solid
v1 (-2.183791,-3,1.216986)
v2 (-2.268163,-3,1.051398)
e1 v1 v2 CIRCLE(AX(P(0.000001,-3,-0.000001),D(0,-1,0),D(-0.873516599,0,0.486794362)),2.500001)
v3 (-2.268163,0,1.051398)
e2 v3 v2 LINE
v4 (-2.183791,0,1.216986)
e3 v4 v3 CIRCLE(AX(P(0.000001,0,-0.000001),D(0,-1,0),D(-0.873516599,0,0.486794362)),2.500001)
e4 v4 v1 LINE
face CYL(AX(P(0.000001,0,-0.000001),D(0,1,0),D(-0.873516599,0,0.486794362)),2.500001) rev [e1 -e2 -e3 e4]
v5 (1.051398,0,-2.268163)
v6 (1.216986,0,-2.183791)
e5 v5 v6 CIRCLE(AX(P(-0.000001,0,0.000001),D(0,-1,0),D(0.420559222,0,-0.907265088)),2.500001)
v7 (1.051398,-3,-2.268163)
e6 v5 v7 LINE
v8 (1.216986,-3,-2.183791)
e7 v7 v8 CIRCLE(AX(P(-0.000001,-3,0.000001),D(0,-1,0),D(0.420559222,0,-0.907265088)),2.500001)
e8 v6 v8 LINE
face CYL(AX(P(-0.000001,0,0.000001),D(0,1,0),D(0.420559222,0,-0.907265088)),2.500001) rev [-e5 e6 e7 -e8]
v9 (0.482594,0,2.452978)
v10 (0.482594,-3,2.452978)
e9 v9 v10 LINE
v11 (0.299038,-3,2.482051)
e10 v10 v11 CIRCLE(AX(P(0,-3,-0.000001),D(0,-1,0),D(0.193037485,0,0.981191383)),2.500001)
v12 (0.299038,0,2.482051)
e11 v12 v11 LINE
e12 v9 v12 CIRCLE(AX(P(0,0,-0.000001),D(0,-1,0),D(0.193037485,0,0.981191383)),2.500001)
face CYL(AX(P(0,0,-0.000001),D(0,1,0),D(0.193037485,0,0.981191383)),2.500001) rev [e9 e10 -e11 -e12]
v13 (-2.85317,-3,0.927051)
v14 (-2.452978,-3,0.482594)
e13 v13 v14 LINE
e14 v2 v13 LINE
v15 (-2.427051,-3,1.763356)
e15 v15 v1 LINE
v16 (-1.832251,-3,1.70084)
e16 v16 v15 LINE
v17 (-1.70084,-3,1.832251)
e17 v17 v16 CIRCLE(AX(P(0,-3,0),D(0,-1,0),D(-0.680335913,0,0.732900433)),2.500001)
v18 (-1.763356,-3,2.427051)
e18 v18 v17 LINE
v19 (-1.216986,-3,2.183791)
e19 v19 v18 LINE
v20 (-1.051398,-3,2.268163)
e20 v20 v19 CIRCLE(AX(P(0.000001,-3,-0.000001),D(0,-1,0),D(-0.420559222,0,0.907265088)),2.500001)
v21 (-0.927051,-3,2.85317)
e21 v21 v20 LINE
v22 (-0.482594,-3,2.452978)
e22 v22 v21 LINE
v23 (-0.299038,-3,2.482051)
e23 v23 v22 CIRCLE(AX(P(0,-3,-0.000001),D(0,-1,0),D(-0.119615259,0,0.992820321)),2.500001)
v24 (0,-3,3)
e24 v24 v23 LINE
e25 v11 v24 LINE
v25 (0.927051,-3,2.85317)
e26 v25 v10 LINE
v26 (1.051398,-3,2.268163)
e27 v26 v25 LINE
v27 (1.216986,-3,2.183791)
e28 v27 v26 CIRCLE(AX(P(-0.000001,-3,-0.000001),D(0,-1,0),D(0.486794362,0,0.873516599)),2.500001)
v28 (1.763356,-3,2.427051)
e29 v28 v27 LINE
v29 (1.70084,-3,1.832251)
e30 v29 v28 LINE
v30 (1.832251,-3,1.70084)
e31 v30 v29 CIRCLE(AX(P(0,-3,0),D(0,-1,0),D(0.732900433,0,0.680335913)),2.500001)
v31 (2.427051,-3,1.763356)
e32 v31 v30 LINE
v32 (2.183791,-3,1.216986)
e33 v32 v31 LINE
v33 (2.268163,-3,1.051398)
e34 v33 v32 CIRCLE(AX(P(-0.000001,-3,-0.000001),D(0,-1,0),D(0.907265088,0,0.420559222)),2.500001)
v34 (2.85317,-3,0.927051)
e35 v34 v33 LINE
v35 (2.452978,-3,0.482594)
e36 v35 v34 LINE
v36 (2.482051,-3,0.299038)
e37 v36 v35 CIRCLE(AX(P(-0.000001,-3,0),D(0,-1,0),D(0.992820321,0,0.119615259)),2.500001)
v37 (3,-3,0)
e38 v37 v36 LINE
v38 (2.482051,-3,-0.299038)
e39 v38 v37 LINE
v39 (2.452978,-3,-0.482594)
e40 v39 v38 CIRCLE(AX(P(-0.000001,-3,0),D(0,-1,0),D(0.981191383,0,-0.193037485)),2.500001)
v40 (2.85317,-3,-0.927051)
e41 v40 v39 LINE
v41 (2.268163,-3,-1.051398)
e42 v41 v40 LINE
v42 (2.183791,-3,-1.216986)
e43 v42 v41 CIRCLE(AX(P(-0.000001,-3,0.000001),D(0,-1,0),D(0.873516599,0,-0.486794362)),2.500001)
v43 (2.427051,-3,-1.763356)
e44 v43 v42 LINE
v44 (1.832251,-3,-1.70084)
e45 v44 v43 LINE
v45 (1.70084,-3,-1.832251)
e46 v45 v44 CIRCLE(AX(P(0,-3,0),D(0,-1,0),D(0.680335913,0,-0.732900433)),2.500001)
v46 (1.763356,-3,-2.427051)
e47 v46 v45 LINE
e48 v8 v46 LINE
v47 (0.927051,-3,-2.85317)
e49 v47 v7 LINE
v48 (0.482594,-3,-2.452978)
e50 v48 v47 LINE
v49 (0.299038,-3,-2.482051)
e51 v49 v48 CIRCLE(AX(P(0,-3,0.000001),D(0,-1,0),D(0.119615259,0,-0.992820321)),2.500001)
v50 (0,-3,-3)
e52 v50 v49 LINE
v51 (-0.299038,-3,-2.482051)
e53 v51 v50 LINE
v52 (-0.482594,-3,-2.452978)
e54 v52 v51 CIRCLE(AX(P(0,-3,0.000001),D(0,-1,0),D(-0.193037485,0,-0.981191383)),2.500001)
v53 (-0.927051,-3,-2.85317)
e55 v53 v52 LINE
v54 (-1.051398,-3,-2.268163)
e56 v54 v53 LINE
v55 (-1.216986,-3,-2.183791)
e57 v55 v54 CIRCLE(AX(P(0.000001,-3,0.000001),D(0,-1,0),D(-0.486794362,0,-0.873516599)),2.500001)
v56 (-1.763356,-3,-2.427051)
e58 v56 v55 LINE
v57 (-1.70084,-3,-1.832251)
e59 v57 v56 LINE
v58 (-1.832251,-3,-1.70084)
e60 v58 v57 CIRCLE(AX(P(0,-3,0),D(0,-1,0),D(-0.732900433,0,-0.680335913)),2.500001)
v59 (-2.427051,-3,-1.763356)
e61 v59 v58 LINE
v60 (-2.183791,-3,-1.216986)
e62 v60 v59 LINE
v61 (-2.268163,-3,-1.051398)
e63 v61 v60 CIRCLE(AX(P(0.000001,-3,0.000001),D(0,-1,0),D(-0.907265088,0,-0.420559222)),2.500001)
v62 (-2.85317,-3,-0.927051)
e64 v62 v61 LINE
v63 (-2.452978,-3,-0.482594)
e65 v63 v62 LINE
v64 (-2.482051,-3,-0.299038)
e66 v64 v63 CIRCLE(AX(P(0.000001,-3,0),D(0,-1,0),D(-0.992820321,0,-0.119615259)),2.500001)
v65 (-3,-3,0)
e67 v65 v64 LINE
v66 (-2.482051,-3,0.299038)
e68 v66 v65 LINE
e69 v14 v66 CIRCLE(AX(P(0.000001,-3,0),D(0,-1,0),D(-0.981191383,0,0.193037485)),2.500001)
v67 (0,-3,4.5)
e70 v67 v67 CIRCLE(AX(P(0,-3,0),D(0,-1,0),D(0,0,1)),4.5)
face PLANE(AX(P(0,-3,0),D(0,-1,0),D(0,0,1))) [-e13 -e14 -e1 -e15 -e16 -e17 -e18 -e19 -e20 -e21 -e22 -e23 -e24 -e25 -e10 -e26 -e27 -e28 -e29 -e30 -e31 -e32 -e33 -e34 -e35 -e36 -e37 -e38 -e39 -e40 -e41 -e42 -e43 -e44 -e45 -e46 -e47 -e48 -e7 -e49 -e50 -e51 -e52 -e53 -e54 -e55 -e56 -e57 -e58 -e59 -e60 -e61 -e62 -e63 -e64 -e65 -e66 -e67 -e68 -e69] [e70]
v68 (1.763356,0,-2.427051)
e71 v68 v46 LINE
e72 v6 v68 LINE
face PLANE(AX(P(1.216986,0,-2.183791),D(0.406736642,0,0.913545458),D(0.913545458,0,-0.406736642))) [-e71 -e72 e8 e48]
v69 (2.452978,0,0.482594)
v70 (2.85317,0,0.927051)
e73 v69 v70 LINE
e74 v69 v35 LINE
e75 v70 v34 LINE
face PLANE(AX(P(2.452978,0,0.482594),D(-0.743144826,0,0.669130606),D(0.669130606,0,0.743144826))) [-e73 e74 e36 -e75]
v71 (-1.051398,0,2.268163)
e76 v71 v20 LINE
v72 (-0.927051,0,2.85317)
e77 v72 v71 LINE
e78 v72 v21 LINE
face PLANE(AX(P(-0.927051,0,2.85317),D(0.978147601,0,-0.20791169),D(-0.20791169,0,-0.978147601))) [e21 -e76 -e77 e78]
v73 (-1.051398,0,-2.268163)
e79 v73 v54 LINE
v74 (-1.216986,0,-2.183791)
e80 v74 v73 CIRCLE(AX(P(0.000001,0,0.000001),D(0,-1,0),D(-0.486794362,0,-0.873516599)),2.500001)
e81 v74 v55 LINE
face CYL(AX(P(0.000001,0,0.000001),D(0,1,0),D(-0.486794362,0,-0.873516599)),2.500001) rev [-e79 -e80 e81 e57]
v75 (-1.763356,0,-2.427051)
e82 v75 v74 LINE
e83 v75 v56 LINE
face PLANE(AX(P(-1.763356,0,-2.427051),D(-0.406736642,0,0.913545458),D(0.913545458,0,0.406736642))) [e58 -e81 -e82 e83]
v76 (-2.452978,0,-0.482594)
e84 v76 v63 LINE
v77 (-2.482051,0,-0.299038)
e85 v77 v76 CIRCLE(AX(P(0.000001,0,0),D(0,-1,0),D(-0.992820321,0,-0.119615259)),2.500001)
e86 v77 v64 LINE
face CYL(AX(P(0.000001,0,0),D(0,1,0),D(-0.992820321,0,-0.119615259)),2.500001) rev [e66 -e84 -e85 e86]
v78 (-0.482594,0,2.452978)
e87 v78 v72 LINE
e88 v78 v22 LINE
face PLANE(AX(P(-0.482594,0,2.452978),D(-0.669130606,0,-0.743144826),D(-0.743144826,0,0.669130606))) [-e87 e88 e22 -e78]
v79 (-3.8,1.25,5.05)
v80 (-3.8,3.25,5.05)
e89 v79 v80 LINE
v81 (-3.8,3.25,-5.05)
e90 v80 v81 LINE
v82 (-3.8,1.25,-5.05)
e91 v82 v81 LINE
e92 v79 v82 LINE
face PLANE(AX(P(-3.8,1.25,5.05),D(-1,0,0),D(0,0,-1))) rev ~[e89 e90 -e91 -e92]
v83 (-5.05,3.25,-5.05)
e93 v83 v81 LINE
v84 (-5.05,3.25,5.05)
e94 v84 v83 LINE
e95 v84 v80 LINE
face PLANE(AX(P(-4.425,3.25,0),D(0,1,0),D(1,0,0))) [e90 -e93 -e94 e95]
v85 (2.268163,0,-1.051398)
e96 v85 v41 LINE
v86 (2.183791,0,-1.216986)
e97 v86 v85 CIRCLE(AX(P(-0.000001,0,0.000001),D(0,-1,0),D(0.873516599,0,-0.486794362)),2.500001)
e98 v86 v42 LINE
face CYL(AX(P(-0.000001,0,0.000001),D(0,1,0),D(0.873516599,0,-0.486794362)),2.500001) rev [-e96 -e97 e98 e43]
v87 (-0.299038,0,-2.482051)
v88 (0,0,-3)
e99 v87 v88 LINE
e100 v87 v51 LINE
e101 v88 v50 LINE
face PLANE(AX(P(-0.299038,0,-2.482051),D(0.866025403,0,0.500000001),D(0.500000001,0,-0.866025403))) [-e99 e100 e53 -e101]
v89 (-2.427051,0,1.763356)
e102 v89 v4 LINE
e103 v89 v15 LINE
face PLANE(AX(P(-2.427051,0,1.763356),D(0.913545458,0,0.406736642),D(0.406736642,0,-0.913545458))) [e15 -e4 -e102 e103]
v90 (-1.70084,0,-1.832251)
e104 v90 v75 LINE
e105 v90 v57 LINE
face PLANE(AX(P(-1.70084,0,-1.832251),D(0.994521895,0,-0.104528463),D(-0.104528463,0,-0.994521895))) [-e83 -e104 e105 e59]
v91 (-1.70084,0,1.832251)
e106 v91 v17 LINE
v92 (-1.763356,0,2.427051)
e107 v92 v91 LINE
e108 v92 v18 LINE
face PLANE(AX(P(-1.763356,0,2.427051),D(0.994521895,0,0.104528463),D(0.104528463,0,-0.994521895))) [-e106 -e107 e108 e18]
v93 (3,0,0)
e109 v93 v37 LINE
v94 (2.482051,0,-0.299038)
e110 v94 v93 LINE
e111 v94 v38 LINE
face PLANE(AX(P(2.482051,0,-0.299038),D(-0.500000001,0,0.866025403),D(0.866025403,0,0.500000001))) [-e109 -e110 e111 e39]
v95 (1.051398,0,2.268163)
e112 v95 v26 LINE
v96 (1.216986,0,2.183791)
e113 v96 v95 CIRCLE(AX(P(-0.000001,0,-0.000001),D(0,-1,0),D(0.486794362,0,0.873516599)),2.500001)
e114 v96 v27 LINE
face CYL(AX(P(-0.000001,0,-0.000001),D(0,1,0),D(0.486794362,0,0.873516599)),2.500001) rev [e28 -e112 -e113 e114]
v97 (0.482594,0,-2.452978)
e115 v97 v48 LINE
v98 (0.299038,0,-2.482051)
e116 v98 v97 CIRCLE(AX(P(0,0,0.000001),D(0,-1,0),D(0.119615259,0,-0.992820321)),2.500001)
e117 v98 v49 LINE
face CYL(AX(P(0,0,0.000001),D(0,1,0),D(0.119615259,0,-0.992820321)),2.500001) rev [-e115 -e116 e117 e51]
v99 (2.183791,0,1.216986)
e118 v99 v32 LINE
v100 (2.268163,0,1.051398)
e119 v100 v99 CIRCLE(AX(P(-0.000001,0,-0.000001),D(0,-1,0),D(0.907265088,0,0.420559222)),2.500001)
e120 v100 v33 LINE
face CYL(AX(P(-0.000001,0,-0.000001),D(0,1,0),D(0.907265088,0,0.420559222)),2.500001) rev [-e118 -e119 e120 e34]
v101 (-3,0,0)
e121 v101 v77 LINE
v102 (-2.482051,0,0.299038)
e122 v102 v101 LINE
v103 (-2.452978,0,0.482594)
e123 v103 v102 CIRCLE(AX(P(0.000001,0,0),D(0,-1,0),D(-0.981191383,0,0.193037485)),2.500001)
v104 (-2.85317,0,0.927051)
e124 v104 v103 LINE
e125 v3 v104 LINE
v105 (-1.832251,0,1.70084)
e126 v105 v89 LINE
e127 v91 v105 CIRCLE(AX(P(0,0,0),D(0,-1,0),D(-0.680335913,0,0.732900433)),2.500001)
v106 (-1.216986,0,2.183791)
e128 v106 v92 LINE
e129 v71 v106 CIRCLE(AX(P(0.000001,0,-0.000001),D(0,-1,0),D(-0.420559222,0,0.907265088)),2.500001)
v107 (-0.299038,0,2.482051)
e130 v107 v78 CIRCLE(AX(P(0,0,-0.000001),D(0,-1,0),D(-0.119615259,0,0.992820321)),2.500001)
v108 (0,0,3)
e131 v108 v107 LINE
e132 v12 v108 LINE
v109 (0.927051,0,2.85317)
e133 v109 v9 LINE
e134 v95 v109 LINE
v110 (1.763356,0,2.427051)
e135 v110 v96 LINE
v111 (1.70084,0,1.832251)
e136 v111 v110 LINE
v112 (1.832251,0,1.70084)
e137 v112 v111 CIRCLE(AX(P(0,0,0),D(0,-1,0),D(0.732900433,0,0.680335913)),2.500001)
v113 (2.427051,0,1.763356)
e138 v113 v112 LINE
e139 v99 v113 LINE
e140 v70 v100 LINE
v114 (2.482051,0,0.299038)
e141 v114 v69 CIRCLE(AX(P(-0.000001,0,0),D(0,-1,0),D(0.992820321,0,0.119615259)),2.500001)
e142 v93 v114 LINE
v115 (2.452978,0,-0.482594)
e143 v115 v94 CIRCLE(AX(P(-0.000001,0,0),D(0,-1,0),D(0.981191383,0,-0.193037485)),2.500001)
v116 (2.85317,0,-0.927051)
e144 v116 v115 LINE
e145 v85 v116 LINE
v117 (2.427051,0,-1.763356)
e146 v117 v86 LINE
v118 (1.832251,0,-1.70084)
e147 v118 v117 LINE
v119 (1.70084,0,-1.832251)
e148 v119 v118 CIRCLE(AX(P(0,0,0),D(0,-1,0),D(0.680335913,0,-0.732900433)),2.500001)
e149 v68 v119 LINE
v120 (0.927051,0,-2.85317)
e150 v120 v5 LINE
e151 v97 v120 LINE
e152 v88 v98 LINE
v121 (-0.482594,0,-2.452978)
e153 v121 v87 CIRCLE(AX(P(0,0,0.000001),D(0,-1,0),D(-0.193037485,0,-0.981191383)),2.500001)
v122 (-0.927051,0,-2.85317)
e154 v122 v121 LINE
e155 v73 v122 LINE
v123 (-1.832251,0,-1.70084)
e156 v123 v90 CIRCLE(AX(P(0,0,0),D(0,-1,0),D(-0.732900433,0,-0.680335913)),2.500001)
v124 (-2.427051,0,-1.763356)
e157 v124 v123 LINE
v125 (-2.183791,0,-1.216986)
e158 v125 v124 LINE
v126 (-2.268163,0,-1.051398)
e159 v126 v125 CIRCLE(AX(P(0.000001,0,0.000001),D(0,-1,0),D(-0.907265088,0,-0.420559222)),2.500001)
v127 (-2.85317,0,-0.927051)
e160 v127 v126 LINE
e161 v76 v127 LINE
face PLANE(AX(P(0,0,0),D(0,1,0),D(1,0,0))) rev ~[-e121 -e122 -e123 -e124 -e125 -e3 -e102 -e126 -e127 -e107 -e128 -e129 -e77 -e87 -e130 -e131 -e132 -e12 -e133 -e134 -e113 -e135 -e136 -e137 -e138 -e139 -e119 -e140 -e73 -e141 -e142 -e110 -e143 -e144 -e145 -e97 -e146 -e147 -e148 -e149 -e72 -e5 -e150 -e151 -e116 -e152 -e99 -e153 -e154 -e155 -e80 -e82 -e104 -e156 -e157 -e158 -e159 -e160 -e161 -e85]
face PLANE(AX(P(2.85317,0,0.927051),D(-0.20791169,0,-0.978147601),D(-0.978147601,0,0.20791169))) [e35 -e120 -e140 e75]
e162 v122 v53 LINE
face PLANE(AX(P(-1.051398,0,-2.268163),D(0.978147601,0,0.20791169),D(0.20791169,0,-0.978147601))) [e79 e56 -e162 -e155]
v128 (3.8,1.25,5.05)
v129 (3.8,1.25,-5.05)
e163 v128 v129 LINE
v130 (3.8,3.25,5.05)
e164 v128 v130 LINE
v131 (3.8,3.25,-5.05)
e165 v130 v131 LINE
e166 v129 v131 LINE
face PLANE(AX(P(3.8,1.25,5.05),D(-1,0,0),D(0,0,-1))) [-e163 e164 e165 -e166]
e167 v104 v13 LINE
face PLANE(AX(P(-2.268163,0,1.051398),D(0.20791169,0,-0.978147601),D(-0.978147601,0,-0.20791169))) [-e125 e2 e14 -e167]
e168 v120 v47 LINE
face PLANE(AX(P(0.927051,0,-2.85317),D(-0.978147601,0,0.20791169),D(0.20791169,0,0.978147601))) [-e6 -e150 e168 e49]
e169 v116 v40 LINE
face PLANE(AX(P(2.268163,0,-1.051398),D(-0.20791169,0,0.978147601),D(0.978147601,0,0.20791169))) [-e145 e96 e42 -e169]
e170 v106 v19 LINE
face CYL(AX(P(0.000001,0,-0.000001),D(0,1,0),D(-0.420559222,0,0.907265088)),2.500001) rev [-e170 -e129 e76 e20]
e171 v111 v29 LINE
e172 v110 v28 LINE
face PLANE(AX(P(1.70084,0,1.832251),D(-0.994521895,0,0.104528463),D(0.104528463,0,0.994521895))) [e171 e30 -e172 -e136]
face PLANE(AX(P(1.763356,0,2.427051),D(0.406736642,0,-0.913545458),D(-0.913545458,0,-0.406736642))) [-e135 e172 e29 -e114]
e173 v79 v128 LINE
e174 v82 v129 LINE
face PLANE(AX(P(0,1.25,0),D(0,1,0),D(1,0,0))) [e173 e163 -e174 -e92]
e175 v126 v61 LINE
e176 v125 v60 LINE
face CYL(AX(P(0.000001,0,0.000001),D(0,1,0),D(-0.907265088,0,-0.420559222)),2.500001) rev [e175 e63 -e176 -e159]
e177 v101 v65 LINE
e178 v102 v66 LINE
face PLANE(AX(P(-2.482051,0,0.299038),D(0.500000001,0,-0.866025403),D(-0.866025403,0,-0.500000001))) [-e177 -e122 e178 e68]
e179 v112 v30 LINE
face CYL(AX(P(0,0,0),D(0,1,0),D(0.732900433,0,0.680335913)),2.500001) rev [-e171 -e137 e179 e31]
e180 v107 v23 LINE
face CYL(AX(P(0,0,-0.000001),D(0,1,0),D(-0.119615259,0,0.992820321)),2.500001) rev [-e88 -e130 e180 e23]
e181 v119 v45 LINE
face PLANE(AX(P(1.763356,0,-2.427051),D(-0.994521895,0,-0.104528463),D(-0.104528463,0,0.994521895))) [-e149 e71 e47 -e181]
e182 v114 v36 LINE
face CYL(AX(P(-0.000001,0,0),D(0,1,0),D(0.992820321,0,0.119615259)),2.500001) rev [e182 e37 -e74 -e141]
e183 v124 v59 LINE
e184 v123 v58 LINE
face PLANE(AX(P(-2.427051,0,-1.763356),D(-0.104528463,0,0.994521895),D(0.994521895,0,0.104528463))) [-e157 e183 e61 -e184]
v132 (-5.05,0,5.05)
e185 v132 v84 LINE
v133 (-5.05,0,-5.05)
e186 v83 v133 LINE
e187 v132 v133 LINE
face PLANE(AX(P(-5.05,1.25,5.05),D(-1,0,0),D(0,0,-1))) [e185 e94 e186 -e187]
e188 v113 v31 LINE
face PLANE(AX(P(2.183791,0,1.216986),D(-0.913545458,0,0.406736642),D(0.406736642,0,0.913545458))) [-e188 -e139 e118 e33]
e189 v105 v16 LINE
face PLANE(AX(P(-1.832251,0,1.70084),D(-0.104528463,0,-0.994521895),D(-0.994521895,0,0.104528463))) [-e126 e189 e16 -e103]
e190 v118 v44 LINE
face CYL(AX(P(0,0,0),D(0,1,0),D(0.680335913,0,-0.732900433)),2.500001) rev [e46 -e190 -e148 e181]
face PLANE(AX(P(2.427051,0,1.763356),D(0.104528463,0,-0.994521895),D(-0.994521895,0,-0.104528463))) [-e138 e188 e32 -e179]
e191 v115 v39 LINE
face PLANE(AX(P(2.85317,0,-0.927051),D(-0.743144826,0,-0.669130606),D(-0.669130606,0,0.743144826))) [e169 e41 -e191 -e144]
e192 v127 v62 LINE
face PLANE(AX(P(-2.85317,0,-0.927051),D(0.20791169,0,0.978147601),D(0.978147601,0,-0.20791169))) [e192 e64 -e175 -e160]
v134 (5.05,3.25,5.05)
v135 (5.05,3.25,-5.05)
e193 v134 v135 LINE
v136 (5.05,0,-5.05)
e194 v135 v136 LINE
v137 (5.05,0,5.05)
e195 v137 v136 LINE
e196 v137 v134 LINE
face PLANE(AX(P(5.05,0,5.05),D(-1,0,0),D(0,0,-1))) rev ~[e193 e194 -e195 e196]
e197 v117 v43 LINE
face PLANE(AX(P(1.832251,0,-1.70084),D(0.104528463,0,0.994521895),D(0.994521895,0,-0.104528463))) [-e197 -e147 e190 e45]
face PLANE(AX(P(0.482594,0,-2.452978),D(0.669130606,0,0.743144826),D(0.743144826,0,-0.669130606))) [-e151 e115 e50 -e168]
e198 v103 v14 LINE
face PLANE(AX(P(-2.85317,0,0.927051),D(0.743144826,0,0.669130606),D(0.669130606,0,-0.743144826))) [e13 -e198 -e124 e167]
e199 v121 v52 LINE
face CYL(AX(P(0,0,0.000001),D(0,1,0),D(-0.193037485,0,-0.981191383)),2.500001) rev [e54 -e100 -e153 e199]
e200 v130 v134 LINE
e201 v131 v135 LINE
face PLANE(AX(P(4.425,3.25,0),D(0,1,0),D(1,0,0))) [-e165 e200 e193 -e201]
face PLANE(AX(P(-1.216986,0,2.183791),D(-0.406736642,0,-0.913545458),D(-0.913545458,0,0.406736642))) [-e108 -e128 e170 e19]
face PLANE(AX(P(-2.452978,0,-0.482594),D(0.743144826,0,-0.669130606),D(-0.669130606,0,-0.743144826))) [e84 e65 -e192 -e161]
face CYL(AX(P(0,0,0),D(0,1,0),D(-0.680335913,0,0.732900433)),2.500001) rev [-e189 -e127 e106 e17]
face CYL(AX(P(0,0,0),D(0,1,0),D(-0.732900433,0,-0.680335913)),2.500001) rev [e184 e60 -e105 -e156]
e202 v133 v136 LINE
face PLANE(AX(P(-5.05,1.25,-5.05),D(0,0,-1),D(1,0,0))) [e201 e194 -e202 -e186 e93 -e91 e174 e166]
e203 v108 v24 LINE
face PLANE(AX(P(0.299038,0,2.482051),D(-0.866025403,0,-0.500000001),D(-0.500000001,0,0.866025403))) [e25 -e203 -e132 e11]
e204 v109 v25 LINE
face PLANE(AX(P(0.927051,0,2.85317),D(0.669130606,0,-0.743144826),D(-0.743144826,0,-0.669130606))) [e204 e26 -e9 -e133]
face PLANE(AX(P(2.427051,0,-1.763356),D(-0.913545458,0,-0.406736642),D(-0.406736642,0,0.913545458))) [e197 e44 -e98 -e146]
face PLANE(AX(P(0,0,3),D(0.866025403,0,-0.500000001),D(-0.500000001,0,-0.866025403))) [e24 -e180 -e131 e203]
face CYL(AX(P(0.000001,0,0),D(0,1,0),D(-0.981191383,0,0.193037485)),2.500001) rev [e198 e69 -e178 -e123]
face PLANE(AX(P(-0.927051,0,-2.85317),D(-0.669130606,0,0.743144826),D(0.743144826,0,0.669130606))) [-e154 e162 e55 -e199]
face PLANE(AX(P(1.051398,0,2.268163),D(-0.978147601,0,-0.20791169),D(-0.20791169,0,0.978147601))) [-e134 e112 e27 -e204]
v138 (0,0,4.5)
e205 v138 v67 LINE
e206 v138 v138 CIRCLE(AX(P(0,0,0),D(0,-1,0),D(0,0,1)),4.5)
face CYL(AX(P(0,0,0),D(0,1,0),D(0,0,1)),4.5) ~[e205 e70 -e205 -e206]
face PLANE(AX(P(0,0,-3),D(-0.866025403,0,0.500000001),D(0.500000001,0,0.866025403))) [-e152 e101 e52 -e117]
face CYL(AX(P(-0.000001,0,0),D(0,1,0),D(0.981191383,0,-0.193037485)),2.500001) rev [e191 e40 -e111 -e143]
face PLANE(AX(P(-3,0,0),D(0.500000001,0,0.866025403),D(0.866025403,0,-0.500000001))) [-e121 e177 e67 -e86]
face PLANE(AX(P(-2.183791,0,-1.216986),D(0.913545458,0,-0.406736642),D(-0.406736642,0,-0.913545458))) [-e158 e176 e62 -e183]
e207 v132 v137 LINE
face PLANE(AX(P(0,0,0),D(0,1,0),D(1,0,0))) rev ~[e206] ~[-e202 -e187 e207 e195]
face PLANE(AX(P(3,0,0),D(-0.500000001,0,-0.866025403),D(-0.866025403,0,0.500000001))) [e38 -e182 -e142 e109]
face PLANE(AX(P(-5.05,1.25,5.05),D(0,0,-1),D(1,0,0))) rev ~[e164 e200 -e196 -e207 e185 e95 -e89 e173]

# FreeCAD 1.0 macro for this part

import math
import FreeCAD as App
import Part
import Sketcher

V = App.Vector
Q = App.Units.Quantity


def add_polygon(sketch, points):
    """Adds a closed chain of lines whose ends are joined by coincident constraints."""
    first, n = sketch.GeometryCount, len(points)
    for a, b in zip(points, points[1:] + points[:1]):
        sketch.addGeometry(Part.LineSegment(App.Vector(*a, 0), App.Vector(*b, 0)), False)
    for i in range(n):
        sketch.addConstraint(Sketcher.Constraint("Coincident", first + i, 2, first + (i + 1) % n, 1))

doc = App.newDocument("Part")
body = doc.addObject("PartDesign::Body", "Body")

sketch1 = doc.addObject("Sketcher::SketchObject", "Sketch")
body.addObject(sketch1)
sketch1.AttachmentSupport = (doc.XZ_Plane, [""])
sketch1.MapMode = "FlatFace"
sketch1.addGeometry([
    Part.LineSegment(V(-2.5, -13.4, 0), V(-4, -4, 0)),
    Part.LineSegment(V(-4, -4, 0), V(-12.4, -2.5, 0)),
    Part.ArcOfCircle(Part.Circle(V(-12, 0, 0), V(0, 0, 1), 2.5), math.radians(100), math.radians(260)),
    Part.LineSegment(V(-12.4, 2.5, 0), V(-4, 4, 0)),
    Part.LineSegment(V(-4, 4, 0), V(-2.5, 13.4, 0)),
    Part.ArcOfCircle(Part.Circle(V(0, 13, 0), V(0, 0, 1), 2.5), math.radians(9), math.radians(171)),
    Part.LineSegment(V(2.5, 13.4, 0), V(4, 4, 0)),
    Part.LineSegment(V(4, 4, 0), V(12.4, 2.5, 0)),
    Part.ArcOfCircle(Part.Circle(V(12, 0, 0), V(0, 0, 1), 2.5), math.radians(-80), math.radians(80)),
    Part.LineSegment(V(12.4, -2.5, 0), V(4, -4, 0)),
    Part.LineSegment(V(4, -4, 0), V(2.5, -13.4, 0)),
    Part.ArcOfCircle(Part.Circle(V(0, -13, 0), V(0, 0, 1), 2.5), math.radians(-171), math.radians(-9)),
    Part.Circle(V(0, 12, 0), V(0, 0, 1), 0.5),
    Part.Circle(V(0, 9.5, 0), V(0, 0, 1), 0.5),
    Part.Circle(V(0, 7.5, 0), V(0, 0, 1), 0.5),
    Part.Circle(V(12, 0, 0), V(0, 0, 1), 0.5),
    Part.Circle(V(9.5, 0, 0), V(0, 0, 1), 0.5),
    Part.Circle(V(7.5, 0, 0), V(0, 0, 1), 0.5),
    Part.Circle(V(0, 0, 0), V(0, 0, 1), 1.4),
    Part.Circle(V(-7.5, 0, 0), V(0, 0, 1), 0.5),
    Part.Circle(V(-9.5, 0, 0), V(0, 0, 1), 0.5),
    Part.Circle(V(-12, 0, 0), V(0, 0, 1), 0.5),
    Part.Circle(V(0, -7.5, 0), V(0, 0, 1), 0.5),
    Part.Circle(V(0, -9.5, 0), V(0, 0, 1), 0.5),
    Part.Circle(V(0, -12, 0), V(0, 0, 1), 0.5),
], False)
sketch1.addConstraint([
    Sketcher.Constraint("Coincident", 0, 2, 1, 1),
    Sketcher.Constraint("Tangent", 1, 2, 2, 2),
    Sketcher.Constraint("Tangent", 2, 1, 3, 1),
    Sketcher.Constraint("Coincident", 3, 2, 4, 1),
    Sketcher.Constraint("Tangent", 4, 2, 5, 2),
    Sketcher.Constraint("Tangent", 5, 1, 6, 1),
    Sketcher.Constraint("Coincident", 6, 2, 7, 1),
    Sketcher.Constraint("Tangent", 7, 2, 8, 2),
    Sketcher.Constraint("Tangent", 8, 1, 9, 1),
    Sketcher.Constraint("Coincident", 9, 2, 10, 1),
    Sketcher.Constraint("Tangent", 10, 2, 11, 2),
    Sketcher.Constraint("Tangent", 11, 1, 0, 1),
    Sketcher.Constraint("Coincident", 18, 3, -1, 1),
    Sketcher.Constraint("Coincident", 15, 3, 8, 3),
    Sketcher.Constraint("Coincident", 21, 3, 2, 3),
    Sketcher.Constraint("Equal", 2, 5),
    Sketcher.Constraint("Equal", 5, 8),
    Sketcher.Constraint("Equal", 8, 11),
    Sketcher.Constraint("Equal", 12, 13),
    Sketcher.Constraint("Equal", 13, 14),
    Sketcher.Constraint("Equal", 14, 15),
    Sketcher.Constraint("Equal", 15, 16),
    Sketcher.Constraint("Equal", 16, 17),
    Sketcher.Constraint("Equal", 17, 19),
    Sketcher.Constraint("Equal", 19, 20),
    Sketcher.Constraint("Equal", 20, 21),
    Sketcher.Constraint("Equal", 21, 22),
    Sketcher.Constraint("Equal", 22, 23),
    Sketcher.Constraint("Equal", 23, 24),
    Sketcher.Constraint("Symmetric", 2, 3, 8, 3, -1, 1),
    Sketcher.Constraint("Symmetric", 5, 3, 11, 3, -1, 1),
    Sketcher.Constraint("Symmetric", 17, 3, 19, 3, -1, 1),
    Sketcher.Constraint("Symmetric", 16, 3, 20, 3, -1, 1),
    Sketcher.Constraint("Symmetric", 14, 3, 22, 3, -1, 1),
    Sketcher.Constraint("Symmetric", 13, 3, 23, 3, -1, 1),
    Sketcher.Constraint("Symmetric", 12, 3, 24, 3, -1, 1),
    Sketcher.Constraint("Symmetric", 0, 2, 6, 2, -1, 1),
    Sketcher.Constraint("Symmetric", 3, 2, 9, 2, -1, 1),
    Sketcher.Constraint("Symmetric", 4, 2, 5, 1, -2),
    Sketcher.Constraint("Symmetric", 2, 1, 7, 2, -2),
    Sketcher.Constraint("PointOnObject", 12, 3, -2),
    Sketcher.Constraint("PointOnObject", 13, 3, -2),
    Sketcher.Constraint("PointOnObject", 14, 3, -2),
    Sketcher.Constraint("PointOnObject", 16, 3, -1),
    Sketcher.Constraint("PointOnObject", 17, 3, -1),
    Sketcher.Constraint("Diameter", 12, 1.0),
    Sketcher.Constraint("Radius", 2, 2.5),
    Sketcher.Constraint("Diameter", 18, 2.75),
    Sketcher.Constraint("DistanceX", 2, 3, -1, 1, 12.0),
    Sketcher.Constraint("DistanceY", -1, 1, 5, 3, 13.0),
    Sketcher.Constraint("DistanceY", -1, 1, 12, 3, 12.0),
    Sketcher.Constraint("DistanceX", 0, 2, -1, 1, 4.0),
    Sketcher.Constraint("DistanceY", 0, 2, -1, 1, 4.0),
    Sketcher.Constraint("DistanceY", 14, 3, 13, 3, 2.0),
    Sketcher.Constraint("DistanceX", 17, 3, 16, 3, 2.0),
    Sketcher.Constraint("DistanceY", -1, 1, 13, 3, 9.5),
    Sketcher.Constraint("DistanceX", -1, 1, 16, 3, 9.5),
])
pad1 = doc.addObject("PartDesign::Pad", "Pad")
body.addObject(pad1)
pad1.Profile = sketch1
pad1.Length = 2
pad1.Reversed = True

sketch2 = doc.addObject("Sketcher::SketchObject", "Sketch001")
body.addObject(sketch2)
sketch2.AttachmentSupport = (doc.XZ_Plane, [""])
sketch2.MapMode = "FlatFace"
sketch2.addGeometry([
    Part.Circle(V(0, 0, 0), V(0, 0, 1), 4.5),
    Part.Circle(V(0, 0, 0), V(0, 0, 1), 2.5),
], False)
sketch2.addConstraint([
    Sketcher.Constraint("Coincident", 0, 3, -1, 1),
    Sketcher.Constraint("Coincident", 1, 3, -1, 1),
    Sketcher.Constraint("Diameter", 0, 9.0),
    Sketcher.Constraint("Diameter", 1, 5.0),
])
pad2 = doc.addObject("PartDesign::Pad", "Pad001")
body.addObject(pad2)
pad2.Profile = sketch2
pad2.Length = 3

sketch3 = doc.addObject("Sketcher::SketchObject", "Sketch002")
body.addObject(sketch3)
sketch3.AttachmentSupport = (doc.XZ_Plane, [""])
sketch3.MapMode = "FlatFace"
sketch3.addGeometry([
    Part.LineSegment(V(0.3, 2.48, 0), V(0, 3, 0)),
    Part.LineSegment(V(0, 3, 0), V(-0.3, 2.48, 0)),
    Part.ArcOfCircle(Part.Circle(V(0, 0, 0), V(0, 0, 1), 2.5), math.radians(96.87), math.radians(101.13)),
    Part.LineSegment(V(-0.48, 2.45, 0), V(-0.93, 2.85, 0)),
    Part.LineSegment(V(-0.93, 2.85, 0), V(-1.05, 2.27, 0)),
    Part.ArcOfCircle(Part.Circle(V(0, 0, 0), V(0, 0, 1), 2.5), math.radians(114.87), math.radians(119.13)),
    Part.LineSegment(V(-1.22, 2.18, 0), V(-1.76, 2.43, 0)),
    Part.LineSegment(V(-1.76, 2.43, 0), V(-1.7, 1.83, 0)),
    Part.ArcOfCircle(Part.Circle(V(0, 0, 0), V(0, 0, 1), 2.5), math.radians(132.87), math.radians(137.13)),
    Part.LineSegment(V(-1.83, 1.7, 0), V(-2.43, 1.76, 0)),
    Part.LineSegment(V(-2.43, 1.76, 0), V(-2.18, 1.22, 0)),
    Part.ArcOfCircle(Part.Circle(V(0, 0, 0), V(0, 0, 1), 2.5), math.radians(150.87), math.radians(155.13)),
    Part.LineSegment(V(-2.27, 1.05, 0), V(-2.85, 0.93, 0)),
    Part.LineSegment(V(-2.85, 0.93, 0), V(-2.45, 0.48, 0)),
    Part.ArcOfCircle(Part.Circle(V(0, 0, 0), V(0, 0, 1), 2.5), math.radians(168.87), math.radians(173.13)),
    Part.LineSegment(V(-2.48, 0.3, 0), V(-3, 0, 0)),
    Part.LineSegment(V(-3, 0, 0), V(-2.48, -0.3, 0)),
    Part.ArcOfCircle(Part.Circle(V(0, 0, 0), V(0, 0, 1), 2.5), math.radians(-173.13), math.radians(-168.87)),
    Part.LineSegment(V(-2.45, -0.48, 0), V(-2.85, -0.93, 0)),
    Part.LineSegment(V(-2.85, -0.93, 0), V(-2.27, -1.05, 0)),
    Part.ArcOfCircle(Part.Circle(V(0, 0, 0), V(0, 0, 1), 2.5), math.radians(-155.13), math.radians(-150.87)),
    Part.LineSegment(V(-2.18, -1.22, 0), V(-2.43, -1.76, 0)),
    Part.LineSegment(V(-2.43, -1.76, 0), V(-1.83, -1.7, 0)),
    Part.ArcOfCircle(Part.Circle(V(0, 0, 0), V(0, 0, 1), 2.5), math.radians(-137.13), math.radians(-132.87)),
    Part.LineSegment(V(-1.7, -1.83, 0), V(-1.76, -2.43, 0)),
    Part.LineSegment(V(-1.76, -2.43, 0), V(-1.22, -2.18, 0)),
    Part.ArcOfCircle(Part.Circle(V(0, 0, 0), V(0, 0, 1), 2.5), math.radians(-119.13), math.radians(-114.87)),
    Part.LineSegment(V(-1.05, -2.27, 0), V(-0.93, -2.85, 0)),
    Part.LineSegment(V(-0.93, -2.85, 0), V(-0.48, -2.45, 0)),
    Part.ArcOfCircle(Part.Circle(V(0, 0, 0), V(0, 0, 1), 2.5), math.radians(-101.13), math.radians(-96.87)),
    Part.LineSegment(V(-0.3, -2.48, 0), V(0, -3, 0)),
    Part.LineSegment(V(0, -3, 0), V(0.3, -2.48, 0)),
    Part.ArcOfCircle(Part.Circle(V(0, 0, 0), V(0, 0, 1), 2.5), math.radians(-83.13), math.radians(-78.87)),
    Part.LineSegment(V(0.48, -2.45, 0), V(0.93, -2.85, 0)),
    Part.LineSegment(V(0.93, -2.85, 0), V(1.05, -2.27, 0)),
    Part.ArcOfCircle(Part.Circle(V(0, 0, 0), V(0, 0, 1), 2.5), math.radians(-65.13), math.radians(-60.87)),
    Part.LineSegment(V(1.22, -2.18, 0), V(1.76, -2.43, 0)),
    Part.LineSegment(V(1.76, -2.43, 0), V(1.7, -1.83, 0)),
    Part.ArcOfCircle(Part.Circle(V(0, 0, 0), V(0, 0, 1), 2.5), math.radians(-47.13), math.radians(-42.87)),
    Part.LineSegment(V(1.83, -1.7, 0), V(2.43, -1.76, 0)),
    Part.LineSegment(V(2.43, -1.76, 0), V(2.18, -1.22, 0)),
    Part.ArcOfCircle(Part.Circle(V(0, 0, 0), V(0, 0, 1), 2.5), math.radians(-29.13), math.radians(-24.87)),
    Part.LineSegment(V(2.27, -1.05, 0), V(2.85, -0.93, 0)),
    Part.LineSegment(V(2.85, -0.93, 0), V(2.45, -0.48, 0)),
    Part.ArcOfCircle(Part.Circle(V(0, 0, 0), V(0, 0, 1), 2.5), math.radians(-11.13), math.radians(-6.87)),
    Part.LineSegment(V(2.48, -0.3, 0), V(3, 0, 0)),
    Part.LineSegment(V(3, 0, 0), V(2.48, 0.3, 0)),
    Part.ArcOfCircle(Part.Circle(V(0, 0, 0), V(0, 0, 1), 2.5), math.radians(6.87), math.radians(11.13)),
    Part.LineSegment(V(2.45, 0.48, 0), V(2.85, 0.93, 0)),
    Part.LineSegment(V(2.85, 0.93, 0), V(2.27, 1.05, 0)),
    Part.ArcOfCircle(Part.Circle(V(0, 0, 0), V(0, 0, 1), 2.5), math.radians(24.87), math.radians(29.13)),
    Part.LineSegment(V(2.18, 1.22, 0), V(2.43, 1.76, 0)),
    Part.LineSegment(V(2.43, 1.76, 0), V(1.83, 1.7, 0)),
    Part.ArcOfCircle(Part.Circle(V(0, 0, 0), V(0, 0, 1), 2.5), math.radians(42.87), math.radians(47.13)),
    Part.LineSegment(V(1.7, 1.83, 0), V(1.76, 2.43, 0)),
    Part.LineSegment(V(1.76, 2.43, 0), V(1.22, 2.18, 0)),
    Part.ArcOfCircle(Part.Circle(V(0, 0, 0), V(0, 0, 1), 2.5), math.radians(60.87), math.radians(65.13)),
    Part.LineSegment(V(1.05, 2.27, 0), V(0.93, 2.85, 0)),
    Part.LineSegment(V(0.93, 2.85, 0), V(0.48, 2.45, 0)),
    Part.ArcOfCircle(Part.Circle(V(0, 0, 0), V(0, 0, 1), 2.5), math.radians(78.87), math.radians(83.13)),
], False)
sketch3.addConstraint([
    Sketcher.Constraint("Coincident", 0, 2, 1, 1),
    Sketcher.Constraint("Coincident", 1, 2, 2, 1),
    Sketcher.Constraint("Coincident", 2, 2, 3, 1),
    Sketcher.Constraint("Coincident", 3, 2, 4, 1),
    Sketcher.Constraint("Coincident", 4, 2, 5, 1),
    Sketcher.Constraint("Coincident", 5, 2, 6, 1),
    Sketcher.Constraint("Coincident", 6, 2, 7, 1),
    Sketcher.Constraint("Coincident", 7, 2, 8, 1),
    Sketcher.Constraint("Coincident", 8, 2, 9, 1),
    Sketcher.Constraint("Coincident", 9, 2, 10, 1),
    Sketcher.Constraint("Coincident", 10, 2, 11, 1),
    Sketcher.Constraint("Coincident", 11, 2, 12, 1),
    Sketcher.Constraint("Coincident", 12, 2, 13, 1),
    Sketcher.Constraint("Coincident", 13, 2, 14, 1),
    Sketcher.Constraint("Coincident", 14, 2, 15, 1),
    Sketcher.Constraint("Coincident", 15, 2, 16, 1),
    Sketcher.Constraint("Coincident", 16, 2, 17, 1),
    Sketcher.Constraint("Coincident", 17, 2, 18, 1),
    Sketcher.Constraint("Coincident", 18, 2, 19, 1),
    Sketcher.Constraint("Coincident", 19, 2, 20, 1),
    Sketcher.Constraint("Coincident", 20, 2, 21, 1),
    Sketcher.Constraint("Coincident", 21, 2, 22, 1),
    Sketcher.Constraint("Coincident", 22, 2, 23, 1),
    Sketcher.Constraint("Coincident", 23, 2, 24, 1),
    Sketcher.Constraint("Coincident", 24, 2, 25, 1),
    Sketcher.Constraint("Coincident", 25, 2, 26, 1),
    Sketcher.Constraint("Coincident", 26, 2, 27, 1),
    Sketcher.Constraint("Coincident", 27, 2, 28, 1),
    Sketcher.Constraint("Coincident", 28, 2, 29, 1),
    Sketcher.Constraint("Coincident", 29, 2, 30, 1),
    Sketcher.Constraint("Coincident", 30, 2, 31, 1),
    Sketcher.Constraint("Coincident", 31, 2, 32, 1),
    Sketcher.Constraint("Coincident", 32, 2, 33, 1),
    Sketcher.Constraint("Coincident", 33, 2, 34, 1),
    Sketcher.Constraint("Coincident", 34, 2, 35, 1),
    Sketcher.Constraint("Coincident", 35, 2, 36, 1),
    Sketcher.Constraint("Coincident", 36, 2, 37, 1),
    Sketcher.Constraint("Coincident", 37, 2, 38, 1),
    Sketcher.Constraint("Coincident", 38, 2, 39, 1),
    Sketcher.Constraint("Coincident", 39, 2, 40, 1),
    Sketcher.Constraint("Coincident", 40, 2, 41, 1),
    Sketcher.Constraint("Coincident", 41, 2, 42, 1),
    Sketcher.Constraint("Coincident", 42, 2, 43, 1),
    Sketcher.Constraint("Coincident", 43, 2, 44, 1),
    Sketcher.Constraint("Coincident", 44, 2, 45, 1),
    Sketcher.Constraint("Coincident", 45, 2, 46, 1),
    Sketcher.Constraint("Coincident", 46, 2, 47, 1),
    Sketcher.Constraint("Coincident", 47, 2, 48, 1),
    Sketcher.Constraint("Coincident", 48, 2, 49, 1),
    Sketcher.Constraint("Coincident", 49, 2, 50, 1),
    Sketcher.Constraint("Coincident", 50, 2, 51, 1),
    Sketcher.Constraint("Coincident", 51, 2, 52, 1),
    Sketcher.Constraint("Coincident", 52, 2, 53, 1),
    Sketcher.Constraint("Coincident", 53, 2, 54, 1),
    Sketcher.Constraint("Coincident", 54, 2, 55, 1),
    Sketcher.Constraint("Coincident", 55, 2, 56, 1),
    Sketcher.Constraint("Coincident", 56, 2, 57, 1),
    Sketcher.Constraint("Coincident", 57, 2, 58, 1),
    Sketcher.Constraint("Coincident", 58, 2, 59, 1),
    Sketcher.Constraint("Coincident", 59, 2, 0, 1),
    Sketcher.Constraint("Coincident", 2, 3, -1, 1),
    Sketcher.Constraint("Coincident", 5, 3, -1, 1),
    Sketcher.Constraint("Coincident", 8, 3, -1, 1),
    Sketcher.Constraint("Coincident", 11, 3, -1, 1),
    Sketcher.Constraint("Coincident", 14, 3, -1, 1),
    Sketcher.Constraint("Coincident", 17, 3, -1, 1),
    Sketcher.Constraint("Coincident", 20, 3, -1, 1),
    Sketcher.Constraint("Coincident", 23, 3, -1, 1),
    Sketcher.Constraint("Coincident", 26, 3, -1, 1),
    Sketcher.Constraint("Coincident", 29, 3, -1, 1),
    Sketcher.Constraint("Coincident", 32, 3, -1, 1),
    Sketcher.Constraint("Coincident", 35, 3, -1, 1),
    Sketcher.Constraint("Coincident", 38, 3, -1, 1),
    Sketcher.Constraint("Coincident", 41, 3, -1, 1),
    Sketcher.Constraint("Coincident", 44, 3, -1, 1),
    Sketcher.Constraint("Coincident", 47, 3, -1, 1),
    Sketcher.Constraint("Coincident", 50, 3, -1, 1),
    Sketcher.Constraint("Coincident", 53, 3, -1, 1),
    Sketcher.Constraint("Coincident", 56, 3, -1, 1),
    Sketcher.Constraint("Coincident", 59, 3, -1, 1),
    Sketcher.Constraint("Equal", 2, 5),
    Sketcher.Constraint("Equal", 5, 8),
    Sketcher.Constraint("Equal", 8, 11),
    Sketcher.Constraint("Equal", 11, 14),
    Sketcher.Constraint("Equal", 14, 17),
    Sketcher.Constraint("Equal", 17, 20),
    Sketcher.Constraint("Equal", 20, 23),
    Sketcher.Constraint("Equal", 23, 26),
    Sketcher.Constraint("Equal", 26, 29),
    Sketcher.Constraint("Equal", 29, 32),
    Sketcher.Constraint("Equal", 32, 35),
    Sketcher.Constraint("Equal", 35, 38),
    Sketcher.Constraint("Equal", 38, 41),
    Sketcher.Constraint("Equal", 41, 44),
    Sketcher.Constraint("Equal", 44, 47),
    Sketcher.Constraint("Equal", 47, 50),
    Sketcher.Constraint("Equal", 50, 53),
    Sketcher.Constraint("Equal", 53, 56),
    Sketcher.Constraint("Equal", 56, 59),
    Sketcher.Constraint("Symmetric", 0, 2, 30, 2, -1, 1),
    Sketcher.Constraint("Symmetric", 3, 2, 33, 2, -1, 1),
    Sketcher.Constraint("Symmetric", 6, 2, 36, 2, -1, 1),
    Sketcher.Constraint("Symmetric", 9, 2, 39, 2, -1, 1),
    Sketcher.Constraint("Symmetric", 12, 2, 42, 2, -1, 1),
    Sketcher.Constraint("Symmetric", 15, 2, 45, 2, -1, 1),
    Sketcher.Constraint("Symmetric", 18, 2, 48, 2, -1, 1),
    Sketcher.Constraint("Symmetric", 21, 2, 51, 2, -1, 1),
    Sketcher.Constraint("Symmetric", 24, 2, 54, 2, -1, 1),
    Sketcher.Constraint("Symmetric", 27, 2, 57, 2, -1, 1),
    Sketcher.Constraint("Symmetric", 27, 2, 33, 2, -2),
    Sketcher.Constraint("Symmetric", 24, 2, 36, 2, -2),
    Sketcher.Constraint("Symmetric", 21, 2, 39, 2, -2),
    Sketcher.Constraint("Symmetric", 18, 2, 42, 2, -2),
    Sketcher.Constraint("PointOnObject", 0, 2, -2),
    Sketcher.Constraint("PointOnObject", 15, 2, -1),
    Sketcher.Constraint("Perpendicular", 0, 15),
    Sketcher.Constraint("Perpendicular", 1, 16),
    Sketcher.Constraint("Perpendicular", 3, 18),
    Sketcher.Constraint("Perpendicular", 4, 19),
    Sketcher.Constraint("Perpendicular", 6, 21),
    Sketcher.Constraint("Perpendicular", 7, 22),
    Sketcher.Constraint("Perpendicular", 9, 24),
    Sketcher.Constraint("Perpendicular", 10, 25),
    Sketcher.Constraint("Perpendicular", 12, 27),
    Sketcher.Constraint("Perpendicular", 13, 28),
    Sketcher.Constraint("Perpendicular", 15, 30),
    Sketcher.Constraint("Perpendicular", 16, 31),
    Sketcher.Constraint("Perpendicular", 18, 33),
    Sketcher.Constraint("Perpendicular", 19, 34),
    Sketcher.Constraint("Perpendicular", 21, 36),
    Sketcher.Constraint("Perpendicular", 22, 37),
    Sketcher.Constraint("Perpendicular", 24, 39),
    Sketcher.Constraint("Perpendicular", 25, 40),
    Sketcher.Constraint("Perpendicular", 27, 42),
    Sketcher.Constraint("Perpendicular", 28, 43),
    Sketcher.Constraint("Perpendicular", 30, 45),
    Sketcher.Constraint("Perpendicular", 31, 46),
    Sketcher.Constraint("Perpendicular", 33, 48),
    Sketcher.Constraint("Perpendicular", 34, 49),
    Sketcher.Constraint("Perpendicular", 36, 51),
    Sketcher.Constraint("Perpendicular", 37, 52),
    Sketcher.Constraint("Perpendicular", 39, 54),
    Sketcher.Constraint("Perpendicular", 40, 55),
    Sketcher.Constraint("Perpendicular", 42, 57),
    Sketcher.Constraint("Perpendicular", 43, 58),
    Sketcher.Constraint("Horizontal", 29, 2, 31, 2),
    Sketcher.Constraint("Horizontal", 28, 2, 32, 2),
    Sketcher.Constraint("Horizontal", 26, 2, 34, 2),
    Sketcher.Constraint("Horizontal", 25, 2, 35, 2),
    Sketcher.Constraint("Horizontal", 23, 2, 37, 2),
    Sketcher.Constraint("Equal", 1, 3),
    Sketcher.Constraint("Equal", 3, 4),
    Sketcher.Constraint("Equal", 4, 6),
    Sketcher.Constraint("Equal", 6, 7),
    Sketcher.Constraint("Equal", 7, 9),
    Sketcher.Constraint("Equal", 9, 10),
    Sketcher.Constraint("Equal", 10, 12),
    Sketcher.Constraint("Equal", 12, 13),
    Sketcher.Constraint("Equal", 13, 15),
    Sketcher.Constraint("Radius", 2, 2.500001),
    Sketcher.Constraint("Angle", 0, Q("120 deg")),
    Sketcher.Constraint("Angle", 3, Q("138 deg")),
    Sketcher.Constraint("Angle", 4, Q("-102 deg")),
    Sketcher.Constraint("Angle", 6, Q("156 deg")),
    Sketcher.Constraint("Angle", 7, Q("-84 deg")),
    Sketcher.Constraint("DistanceY", -1, 1, 0, 2, 3.0),
])
pocket1 = doc.addObject("PartDesign::Pocket", "Pocket")
body.addObject(pocket1)
pocket1.Profile = sketch3
pocket1.Length = 3
pocket1.Reversed = True

sketch4 = doc.addObject("Sketcher::SketchObject", "Sketch003")
body.addObject(sketch4)
sketch4.AttachmentSupport = (doc.XZ_Plane, [""])
sketch4.MapMode = "FlatFace"
add_polygon(sketch4, [(17, -17), (17, 17), (-17, 17), (-17, -17)])
sketch4.addConstraint([
    Sketcher.Constraint("Vertical", 0),
    Sketcher.Constraint("Horizontal", 1),
    Sketcher.Constraint("Vertical", 2),
    Sketcher.Constraint("Horizontal", 3),
    Sketcher.Constraint("Symmetric", 0, 2, 2, 2, -1, 1),
    Sketcher.Constraint("DistanceX", 1, 2, 1, 1, 34.029643),
    Sketcher.Constraint("DistanceY", 0, 1, 0, 2, 33.796563),
])
pocket2 = doc.addObject("PartDesign::Pocket", "Pocket001")
body.addObject(pocket2)
pocket2.Profile = sketch4
pocket2.Type = "ThroughAll"

sketch5 = doc.addObject("Sketcher::SketchObject", "Sketch004")
body.addObject(sketch5)
sketch5.AttachmentSupport = (doc.XZ_Plane, [""])
sketch5.MapMode = "FlatFace"
add_polygon(sketch5, [(-5, -5), (-5, 5), (5, 5), (5, -5)])
sketch5.addConstraint([
    Sketcher.Constraint("Vertical", 0),
    Sketcher.Constraint("Horizontal", 1),
    Sketcher.Constraint("Vertical", 2),
    Sketcher.Constraint("Horizontal", 3),
    Sketcher.Constraint("Symmetric", 0, 2, 2, 2, -1, 1),
    Sketcher.Constraint("Equal", 3, 0),
    Sketcher.Constraint("DistanceX", 1, 1, 1, 2, 10.1),
])
pad3 = doc.addObject("PartDesign::Pad", "Pad002")
body.addObject(pad3)
pad3.Profile = sketch5
pad3.Length = 1.25
pad3.Reversed = True

sketch6 = doc.addObject("Sketcher::SketchObject", "Sketch005")
body.addObject(sketch6)
sketch6.AttachmentSupport = (doc.XZ_Plane, [""])
sketch6.MapMode = "FlatFace"
sketch6.AttachmentOffset = App.Placement(V(0, 0, -1.25), App.Rotation())
add_polygon(sketch6, [(-5, -5), (-5, 5), (-3.8, 5), (-3.8, -5)])
add_polygon(sketch6, [(3.8, -5), (3.8, 5), (5, 5), (5, -5)])
sketch6.addConstraint([
    Sketcher.Constraint("Vertical", 0),
    Sketcher.Constraint("Horizontal", 1),
    Sketcher.Constraint("Vertical", 2),
    Sketcher.Constraint("Horizontal", 3),
    Sketcher.Constraint("Vertical", 4),
    Sketcher.Constraint("Horizontal", 5),
    Sketcher.Constraint("Vertical", 6),
    Sketcher.Constraint("Horizontal", 7),
    Sketcher.Constraint("Symmetric", 2, 2, 4, 2, -1, 1),
    Sketcher.Constraint("Symmetric", 0, 2, 6, 2, -1, 1),
    Sketcher.Constraint("Horizontal", 1, 2, 4, 2),
    Sketcher.Constraint("DistanceY", 0, 1, 0, 2, 10.1),
    Sketcher.Constraint("DistanceX", 1, 1, 1, 2, 1.25),
    Sketcher.Constraint("DistanceX", 1, 2, -1, 1, 3.8),
])
pad4 = doc.addObject("PartDesign::Pad", "Pad003")
body.addObject(pad4)
pad4.Profile = sketch6
pad4.Length = 2
pad4.Reversed = True

doc.recompute()
